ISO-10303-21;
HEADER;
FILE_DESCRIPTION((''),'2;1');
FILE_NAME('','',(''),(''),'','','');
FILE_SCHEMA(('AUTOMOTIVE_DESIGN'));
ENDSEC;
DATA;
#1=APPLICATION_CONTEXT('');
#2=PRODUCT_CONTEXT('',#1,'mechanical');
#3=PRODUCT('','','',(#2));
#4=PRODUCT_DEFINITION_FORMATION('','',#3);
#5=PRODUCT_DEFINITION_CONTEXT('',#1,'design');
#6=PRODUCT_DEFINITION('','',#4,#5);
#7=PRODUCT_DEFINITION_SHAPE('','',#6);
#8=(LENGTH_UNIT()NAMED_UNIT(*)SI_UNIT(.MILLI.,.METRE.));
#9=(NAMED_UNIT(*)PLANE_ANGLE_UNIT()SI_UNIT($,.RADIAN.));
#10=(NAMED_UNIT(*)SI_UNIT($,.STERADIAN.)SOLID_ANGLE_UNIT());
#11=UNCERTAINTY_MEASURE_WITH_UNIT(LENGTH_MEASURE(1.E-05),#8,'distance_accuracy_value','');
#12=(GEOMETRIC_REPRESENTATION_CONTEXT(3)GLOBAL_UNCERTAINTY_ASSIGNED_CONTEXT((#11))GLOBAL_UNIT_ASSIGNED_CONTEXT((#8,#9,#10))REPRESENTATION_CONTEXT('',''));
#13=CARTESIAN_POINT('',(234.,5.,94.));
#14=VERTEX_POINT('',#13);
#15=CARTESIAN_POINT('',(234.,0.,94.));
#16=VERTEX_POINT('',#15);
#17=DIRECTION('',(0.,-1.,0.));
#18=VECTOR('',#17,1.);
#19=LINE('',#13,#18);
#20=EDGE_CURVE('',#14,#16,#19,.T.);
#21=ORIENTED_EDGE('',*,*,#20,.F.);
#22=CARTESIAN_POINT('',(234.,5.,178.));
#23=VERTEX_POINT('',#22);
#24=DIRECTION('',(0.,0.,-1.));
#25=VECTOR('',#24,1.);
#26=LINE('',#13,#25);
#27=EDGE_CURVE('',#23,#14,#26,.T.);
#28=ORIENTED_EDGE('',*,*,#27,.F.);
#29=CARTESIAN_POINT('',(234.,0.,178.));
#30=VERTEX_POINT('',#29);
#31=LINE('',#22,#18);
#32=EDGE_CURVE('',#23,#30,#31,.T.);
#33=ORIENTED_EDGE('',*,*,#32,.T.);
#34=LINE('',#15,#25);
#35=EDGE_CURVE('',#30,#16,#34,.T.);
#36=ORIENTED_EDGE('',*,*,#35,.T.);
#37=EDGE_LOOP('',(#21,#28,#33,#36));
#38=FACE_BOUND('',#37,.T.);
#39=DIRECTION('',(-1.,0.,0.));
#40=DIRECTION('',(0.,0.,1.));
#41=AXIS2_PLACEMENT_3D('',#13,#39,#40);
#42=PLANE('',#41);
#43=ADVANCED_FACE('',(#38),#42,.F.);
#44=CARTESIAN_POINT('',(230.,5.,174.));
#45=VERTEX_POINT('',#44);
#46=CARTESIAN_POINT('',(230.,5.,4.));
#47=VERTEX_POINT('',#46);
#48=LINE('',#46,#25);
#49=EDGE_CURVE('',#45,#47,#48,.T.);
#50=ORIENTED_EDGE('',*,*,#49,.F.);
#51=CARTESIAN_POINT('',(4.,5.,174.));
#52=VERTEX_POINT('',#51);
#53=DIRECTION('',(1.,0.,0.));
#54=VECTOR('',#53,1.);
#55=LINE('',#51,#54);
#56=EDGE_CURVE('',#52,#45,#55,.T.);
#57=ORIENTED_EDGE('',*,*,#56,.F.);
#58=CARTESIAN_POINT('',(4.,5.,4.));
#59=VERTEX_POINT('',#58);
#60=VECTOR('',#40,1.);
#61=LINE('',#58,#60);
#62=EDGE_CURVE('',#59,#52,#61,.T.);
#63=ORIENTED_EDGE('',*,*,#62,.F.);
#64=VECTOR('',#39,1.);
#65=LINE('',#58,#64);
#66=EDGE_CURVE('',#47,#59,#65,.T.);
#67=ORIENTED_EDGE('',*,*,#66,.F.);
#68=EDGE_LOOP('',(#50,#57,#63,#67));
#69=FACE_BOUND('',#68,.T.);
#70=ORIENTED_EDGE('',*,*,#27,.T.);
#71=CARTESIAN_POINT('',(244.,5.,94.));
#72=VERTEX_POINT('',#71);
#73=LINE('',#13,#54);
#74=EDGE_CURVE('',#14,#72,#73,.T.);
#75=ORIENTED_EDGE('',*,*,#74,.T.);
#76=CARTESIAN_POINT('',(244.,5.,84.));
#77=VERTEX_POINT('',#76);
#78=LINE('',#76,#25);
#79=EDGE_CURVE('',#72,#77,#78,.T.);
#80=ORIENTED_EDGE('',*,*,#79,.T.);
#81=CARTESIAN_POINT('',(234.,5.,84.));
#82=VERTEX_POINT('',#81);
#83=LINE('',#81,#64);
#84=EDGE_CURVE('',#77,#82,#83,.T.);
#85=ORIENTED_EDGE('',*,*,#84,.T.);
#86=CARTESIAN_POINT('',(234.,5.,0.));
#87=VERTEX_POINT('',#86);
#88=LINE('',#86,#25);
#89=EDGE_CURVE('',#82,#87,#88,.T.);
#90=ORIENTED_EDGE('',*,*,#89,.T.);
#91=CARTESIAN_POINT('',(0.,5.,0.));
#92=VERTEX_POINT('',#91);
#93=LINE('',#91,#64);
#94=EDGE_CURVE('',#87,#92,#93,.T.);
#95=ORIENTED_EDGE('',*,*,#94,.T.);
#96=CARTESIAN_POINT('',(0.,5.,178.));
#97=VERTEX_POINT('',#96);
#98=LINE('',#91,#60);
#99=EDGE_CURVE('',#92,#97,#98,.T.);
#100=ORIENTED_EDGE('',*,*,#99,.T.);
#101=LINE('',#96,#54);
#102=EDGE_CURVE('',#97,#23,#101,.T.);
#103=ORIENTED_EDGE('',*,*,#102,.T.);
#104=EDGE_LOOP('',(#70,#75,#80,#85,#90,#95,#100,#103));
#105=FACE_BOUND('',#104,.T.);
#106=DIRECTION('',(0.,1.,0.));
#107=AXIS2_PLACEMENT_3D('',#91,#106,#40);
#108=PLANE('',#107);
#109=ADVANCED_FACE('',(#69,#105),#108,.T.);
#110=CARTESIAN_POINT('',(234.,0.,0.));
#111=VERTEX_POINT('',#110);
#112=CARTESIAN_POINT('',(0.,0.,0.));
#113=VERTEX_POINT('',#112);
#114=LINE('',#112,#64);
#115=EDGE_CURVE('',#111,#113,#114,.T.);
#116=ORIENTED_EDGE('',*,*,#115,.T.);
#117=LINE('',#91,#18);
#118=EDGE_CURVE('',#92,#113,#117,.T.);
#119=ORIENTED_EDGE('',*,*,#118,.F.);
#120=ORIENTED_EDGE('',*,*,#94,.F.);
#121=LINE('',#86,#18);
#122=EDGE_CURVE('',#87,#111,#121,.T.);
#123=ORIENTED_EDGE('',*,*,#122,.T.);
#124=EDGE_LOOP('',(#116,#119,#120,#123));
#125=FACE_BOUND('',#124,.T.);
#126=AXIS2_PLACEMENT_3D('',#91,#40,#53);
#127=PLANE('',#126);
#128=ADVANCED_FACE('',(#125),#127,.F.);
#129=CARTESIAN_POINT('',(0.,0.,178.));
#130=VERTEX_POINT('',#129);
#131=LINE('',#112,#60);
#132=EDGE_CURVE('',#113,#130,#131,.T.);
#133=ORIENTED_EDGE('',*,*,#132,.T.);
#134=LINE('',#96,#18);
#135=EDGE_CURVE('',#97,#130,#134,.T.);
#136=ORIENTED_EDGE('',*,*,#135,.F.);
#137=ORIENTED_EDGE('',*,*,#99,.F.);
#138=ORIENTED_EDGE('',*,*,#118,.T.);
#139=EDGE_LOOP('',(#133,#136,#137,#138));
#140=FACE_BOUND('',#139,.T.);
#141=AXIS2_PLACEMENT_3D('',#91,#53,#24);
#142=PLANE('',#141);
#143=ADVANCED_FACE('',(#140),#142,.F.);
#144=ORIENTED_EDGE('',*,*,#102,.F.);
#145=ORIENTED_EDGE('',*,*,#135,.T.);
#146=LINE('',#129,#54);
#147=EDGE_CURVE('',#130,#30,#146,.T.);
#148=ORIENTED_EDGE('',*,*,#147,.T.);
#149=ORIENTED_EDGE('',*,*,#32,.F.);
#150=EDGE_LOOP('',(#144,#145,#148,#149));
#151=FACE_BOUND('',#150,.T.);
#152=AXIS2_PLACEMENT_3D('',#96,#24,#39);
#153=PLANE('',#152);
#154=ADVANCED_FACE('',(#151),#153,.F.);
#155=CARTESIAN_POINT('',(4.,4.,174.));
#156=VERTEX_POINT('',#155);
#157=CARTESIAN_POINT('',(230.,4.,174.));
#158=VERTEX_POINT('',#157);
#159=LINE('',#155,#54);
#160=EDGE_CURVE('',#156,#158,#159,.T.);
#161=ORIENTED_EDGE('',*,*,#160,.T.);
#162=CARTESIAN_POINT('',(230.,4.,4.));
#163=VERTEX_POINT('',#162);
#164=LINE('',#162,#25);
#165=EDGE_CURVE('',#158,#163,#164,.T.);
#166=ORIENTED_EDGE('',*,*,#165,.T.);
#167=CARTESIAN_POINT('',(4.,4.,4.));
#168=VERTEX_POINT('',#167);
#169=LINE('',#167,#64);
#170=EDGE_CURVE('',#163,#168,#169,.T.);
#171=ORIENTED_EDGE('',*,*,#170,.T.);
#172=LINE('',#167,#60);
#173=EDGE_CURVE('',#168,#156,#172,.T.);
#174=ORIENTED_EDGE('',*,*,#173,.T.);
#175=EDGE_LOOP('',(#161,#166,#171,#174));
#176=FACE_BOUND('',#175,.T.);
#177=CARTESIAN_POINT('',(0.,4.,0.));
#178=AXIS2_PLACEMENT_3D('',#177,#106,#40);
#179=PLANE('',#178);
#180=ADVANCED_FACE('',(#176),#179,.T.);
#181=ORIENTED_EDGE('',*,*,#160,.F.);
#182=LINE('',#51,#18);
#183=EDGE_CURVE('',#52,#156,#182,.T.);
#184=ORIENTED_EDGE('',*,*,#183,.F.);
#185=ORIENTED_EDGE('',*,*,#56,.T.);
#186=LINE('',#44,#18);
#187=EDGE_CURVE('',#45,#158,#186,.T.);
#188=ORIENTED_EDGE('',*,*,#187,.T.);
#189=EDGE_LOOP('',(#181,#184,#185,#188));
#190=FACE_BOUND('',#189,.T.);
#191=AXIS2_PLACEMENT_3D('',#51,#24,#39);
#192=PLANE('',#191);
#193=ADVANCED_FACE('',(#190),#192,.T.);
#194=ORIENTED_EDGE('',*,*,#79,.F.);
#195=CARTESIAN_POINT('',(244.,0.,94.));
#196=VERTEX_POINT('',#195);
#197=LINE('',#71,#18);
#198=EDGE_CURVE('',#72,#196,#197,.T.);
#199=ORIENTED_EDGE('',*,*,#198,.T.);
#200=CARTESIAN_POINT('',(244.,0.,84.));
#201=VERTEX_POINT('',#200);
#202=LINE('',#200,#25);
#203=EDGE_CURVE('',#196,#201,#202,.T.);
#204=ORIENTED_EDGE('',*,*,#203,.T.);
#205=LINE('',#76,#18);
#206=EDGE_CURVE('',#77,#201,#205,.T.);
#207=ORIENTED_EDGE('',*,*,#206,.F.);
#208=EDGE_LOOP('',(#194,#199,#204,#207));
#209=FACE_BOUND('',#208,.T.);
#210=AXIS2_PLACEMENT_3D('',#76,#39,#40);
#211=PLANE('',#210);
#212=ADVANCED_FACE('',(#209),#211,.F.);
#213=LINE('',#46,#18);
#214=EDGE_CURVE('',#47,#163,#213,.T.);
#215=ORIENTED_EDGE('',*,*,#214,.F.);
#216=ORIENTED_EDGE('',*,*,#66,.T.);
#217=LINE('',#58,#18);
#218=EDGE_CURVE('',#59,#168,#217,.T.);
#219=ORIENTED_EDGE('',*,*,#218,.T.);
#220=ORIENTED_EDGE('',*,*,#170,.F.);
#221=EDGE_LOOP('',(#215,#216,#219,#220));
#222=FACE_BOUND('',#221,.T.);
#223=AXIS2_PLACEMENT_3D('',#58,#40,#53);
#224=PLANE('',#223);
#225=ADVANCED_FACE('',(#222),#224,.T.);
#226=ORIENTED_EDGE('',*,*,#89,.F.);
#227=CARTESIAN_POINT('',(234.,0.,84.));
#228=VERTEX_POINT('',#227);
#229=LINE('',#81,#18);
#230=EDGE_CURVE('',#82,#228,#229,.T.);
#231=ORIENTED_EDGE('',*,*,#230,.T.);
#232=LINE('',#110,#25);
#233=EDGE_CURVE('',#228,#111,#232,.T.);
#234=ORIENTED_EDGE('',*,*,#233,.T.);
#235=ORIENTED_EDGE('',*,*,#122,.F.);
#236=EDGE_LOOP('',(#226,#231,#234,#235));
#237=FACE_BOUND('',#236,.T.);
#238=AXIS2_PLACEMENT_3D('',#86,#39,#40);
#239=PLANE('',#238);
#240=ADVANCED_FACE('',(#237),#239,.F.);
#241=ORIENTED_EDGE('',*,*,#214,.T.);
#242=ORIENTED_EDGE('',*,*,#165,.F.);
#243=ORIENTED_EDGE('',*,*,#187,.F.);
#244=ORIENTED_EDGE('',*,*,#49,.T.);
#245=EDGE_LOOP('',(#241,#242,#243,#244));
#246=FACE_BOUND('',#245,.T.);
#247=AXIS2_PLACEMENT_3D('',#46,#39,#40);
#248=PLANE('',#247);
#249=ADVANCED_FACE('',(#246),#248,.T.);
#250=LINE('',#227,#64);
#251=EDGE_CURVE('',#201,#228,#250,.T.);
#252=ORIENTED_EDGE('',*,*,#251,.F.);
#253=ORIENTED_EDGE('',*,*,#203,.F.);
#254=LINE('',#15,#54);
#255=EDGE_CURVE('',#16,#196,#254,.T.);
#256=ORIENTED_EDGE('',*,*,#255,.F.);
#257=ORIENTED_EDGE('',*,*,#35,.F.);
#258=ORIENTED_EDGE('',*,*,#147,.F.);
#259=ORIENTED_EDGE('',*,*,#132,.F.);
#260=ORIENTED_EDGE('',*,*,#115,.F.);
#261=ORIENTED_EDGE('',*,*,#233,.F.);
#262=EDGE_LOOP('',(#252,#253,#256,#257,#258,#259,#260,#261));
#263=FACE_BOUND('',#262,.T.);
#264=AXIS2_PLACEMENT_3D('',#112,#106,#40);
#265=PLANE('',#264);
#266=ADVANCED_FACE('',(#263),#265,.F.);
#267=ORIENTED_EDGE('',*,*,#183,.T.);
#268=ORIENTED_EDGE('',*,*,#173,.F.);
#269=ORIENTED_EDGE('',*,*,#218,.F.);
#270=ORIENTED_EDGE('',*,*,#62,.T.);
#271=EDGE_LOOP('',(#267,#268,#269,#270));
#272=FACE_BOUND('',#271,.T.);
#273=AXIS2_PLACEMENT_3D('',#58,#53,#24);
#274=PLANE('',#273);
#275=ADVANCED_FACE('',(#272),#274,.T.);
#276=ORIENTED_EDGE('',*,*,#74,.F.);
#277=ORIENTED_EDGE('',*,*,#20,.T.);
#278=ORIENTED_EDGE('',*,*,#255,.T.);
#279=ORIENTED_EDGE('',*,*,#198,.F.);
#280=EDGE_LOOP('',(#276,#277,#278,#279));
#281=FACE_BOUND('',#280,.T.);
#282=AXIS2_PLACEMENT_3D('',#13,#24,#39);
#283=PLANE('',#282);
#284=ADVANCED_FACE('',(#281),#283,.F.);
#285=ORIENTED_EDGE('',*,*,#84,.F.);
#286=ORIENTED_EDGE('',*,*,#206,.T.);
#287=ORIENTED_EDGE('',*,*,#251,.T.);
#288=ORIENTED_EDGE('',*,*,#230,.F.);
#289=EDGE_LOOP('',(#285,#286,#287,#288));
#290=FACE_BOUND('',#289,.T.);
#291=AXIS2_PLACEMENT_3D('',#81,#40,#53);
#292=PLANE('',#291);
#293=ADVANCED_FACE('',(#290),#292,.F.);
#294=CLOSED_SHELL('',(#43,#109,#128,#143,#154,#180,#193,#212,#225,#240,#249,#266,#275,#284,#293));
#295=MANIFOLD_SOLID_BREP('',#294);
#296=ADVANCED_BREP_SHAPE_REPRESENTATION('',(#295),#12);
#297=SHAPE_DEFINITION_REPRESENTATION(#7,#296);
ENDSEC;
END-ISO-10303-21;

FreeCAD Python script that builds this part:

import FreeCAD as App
import Part
import Sketcher
from FreeCAD import Vector

doc = App.newDocument("Part")
body = doc.addObject("PartDesign::Body", "Body")

# Sketch on XZ plane
sketch1 = body.newObject("Sketcher::SketchObject", "Sketch")
sketch1.AttachmentSupport = (doc.getObject("XZ_Plane"), [""])
sketch1.MapMode = "FlatFace"
sketch1.addGeometry([
    Part.LineSegment(Vector(234, 178, 0), Vector(234, 94, 0)),  # 0
    Part.LineSegment(Vector(234, 94, 0), Vector(244, 94, 0)),  # 1
    Part.LineSegment(Vector(244, 94, 0), Vector(244, 84, 0)),  # 2
    Part.LineSegment(Vector(244, 84, 0), Vector(234, 84, 0)),  # 3
    Part.LineSegment(Vector(234, 84, 0), Vector(234, 0, 0)),  # 4
    Part.LineSegment(Vector(234, 0, 0), Vector(0, 0, 0)),  # 5
    Part.LineSegment(Vector(0, 0, 0), Vector(0, 178, 0)),  # 6
    Part.LineSegment(Vector(0, 178, 0), Vector(234, 178, 0)),  # 7
    Part.LineSegment(Vector(4, 174, 0), Vector(4, 4, 0)),  # 8
    Part.LineSegment(Vector(4, 4, 0), Vector(230, 4, 0)),  # 9
    Part.LineSegment(Vector(230, 4, 0), Vector(230, 174, 0)),  # 10
    Part.LineSegment(Vector(230, 174, 0), Vector(4, 174, 0)),  # 11
], False)
sketch1.addConstraint([
    Sketcher.Constraint("Coincident", 0, 2, 1, 1),
    Sketcher.Constraint("Coincident", 1, 2, 2, 1),
    Sketcher.Constraint("Coincident", 2, 2, 3, 1),
    Sketcher.Constraint("Coincident", 3, 2, 4, 1),
    Sketcher.Constraint("Coincident", 4, 2, 5, 1),
    Sketcher.Constraint("Coincident", 5, 2, 6, 1),
    Sketcher.Constraint("Coincident", 6, 2, 7, 1),
    Sketcher.Constraint("Coincident", 7, 2, 0, 1),
    Sketcher.Constraint("Coincident", 8, 2, 9, 1),
    Sketcher.Constraint("Coincident", 9, 2, 10, 1),
    Sketcher.Constraint("Coincident", 10, 2, 11, 1),
    Sketcher.Constraint("Coincident", 11, 2, 8, 1),
    Sketcher.Constraint("Vertical", 0),
    Sketcher.Constraint("Horizontal", 1),
    Sketcher.Constraint("Vertical", 2),
    Sketcher.Constraint("Horizontal", 3),
    Sketcher.Constraint("Vertical", 4),
    Sketcher.Constraint("Horizontal", 5),
    Sketcher.Constraint("Vertical", 6),
    Sketcher.Constraint("Horizontal", 7),
    Sketcher.Constraint("Vertical", 8),
    Sketcher.Constraint("Horizontal", 9),
    Sketcher.Constraint("Vertical", 10),
    Sketcher.Constraint("Horizontal", 11),
    Sketcher.Constraint("Coincident", 5, 2, -1, 1),
    Sketcher.Constraint("Vertical", 0, 2, 3, 2),
    Sketcher.Constraint("Equal", 3, 2),
    Sketcher.Constraint("Equal", 0, 4),
    Sketcher.Constraint("DistanceX", 1, 1, 1, 2, 10.0),
    Sketcher.Constraint("DistanceX", 5, 2, 5, 1, 234.0),
    Sketcher.Constraint("DistanceX", 9, 1, 9, 2, 226.0),
    Sketcher.Constraint("DistanceY", 0, 2, 0, 1, 84.0),
    Sketcher.Constraint("DistanceY", 8, 2, 8, 1, 170.0),
    Sketcher.Constraint("DistanceX", -1, 1, 8, 2, 4.0),
    Sketcher.Constraint("DistanceY", -1, 1, 8, 2, 4.0),
])
pad1 = body.newObject("PartDesign::Pad", "Pad")
pad1.Profile = sketch1
pad1.Length = 5
pad1.Reversed = True

# Sketch on XZ plane
sketch2 = body.newObject("Sketcher::SketchObject", "Sketch001")
sketch2.AttachmentSupport = (doc.getObject("XZ_Plane"), [""])
sketch2.MapMode = "FlatFace"
sketch2.addGeometry([
    Part.LineSegment(Vector(4, 4, 0), Vector(4, 174, 0)),
    Part.LineSegment(Vector(4, 174, 0), Vector(230, 174, 0)),
    Part.LineSegment(Vector(230, 174, 0), Vector(230, 4, 0)),
    Part.LineSegment(Vector(230, 4, 0), Vector(4, 4, 0)),
], False)
sketch2.addConstraint([
    Sketcher.Constraint("Coincident", 0, 2, 1, 1),
    Sketcher.Constraint("Coincident", 1, 2, 2, 1),
    Sketcher.Constraint("Coincident", 2, 2, 3, 1),
    Sketcher.Constraint("Coincident", 3, 2, 0, 1),
    Sketcher.Constraint("Vertical", 0),
    Sketcher.Constraint("Horizontal", 1),
    Sketcher.Constraint("Vertical", 2),
    Sketcher.Constraint("Horizontal", 3),
    Sketcher.Constraint("DistanceX", 1, 1, 1, 2, 226.0),
    Sketcher.Constraint("DistanceY", 0, 1, 0, 2, 170.0),
    Sketcher.Constraint("DistanceX", -1, 1, 0, 2, 4.0),
    Sketcher.Constraint("DistanceY", -1, 1, 0, 2, 174.0),
])
pad2 = body.newObject("PartDesign::Pad", "Pad001")
pad2.Profile = sketch2
pad2.Length = 4
pad2.Reversed = True

doc.recompute()
